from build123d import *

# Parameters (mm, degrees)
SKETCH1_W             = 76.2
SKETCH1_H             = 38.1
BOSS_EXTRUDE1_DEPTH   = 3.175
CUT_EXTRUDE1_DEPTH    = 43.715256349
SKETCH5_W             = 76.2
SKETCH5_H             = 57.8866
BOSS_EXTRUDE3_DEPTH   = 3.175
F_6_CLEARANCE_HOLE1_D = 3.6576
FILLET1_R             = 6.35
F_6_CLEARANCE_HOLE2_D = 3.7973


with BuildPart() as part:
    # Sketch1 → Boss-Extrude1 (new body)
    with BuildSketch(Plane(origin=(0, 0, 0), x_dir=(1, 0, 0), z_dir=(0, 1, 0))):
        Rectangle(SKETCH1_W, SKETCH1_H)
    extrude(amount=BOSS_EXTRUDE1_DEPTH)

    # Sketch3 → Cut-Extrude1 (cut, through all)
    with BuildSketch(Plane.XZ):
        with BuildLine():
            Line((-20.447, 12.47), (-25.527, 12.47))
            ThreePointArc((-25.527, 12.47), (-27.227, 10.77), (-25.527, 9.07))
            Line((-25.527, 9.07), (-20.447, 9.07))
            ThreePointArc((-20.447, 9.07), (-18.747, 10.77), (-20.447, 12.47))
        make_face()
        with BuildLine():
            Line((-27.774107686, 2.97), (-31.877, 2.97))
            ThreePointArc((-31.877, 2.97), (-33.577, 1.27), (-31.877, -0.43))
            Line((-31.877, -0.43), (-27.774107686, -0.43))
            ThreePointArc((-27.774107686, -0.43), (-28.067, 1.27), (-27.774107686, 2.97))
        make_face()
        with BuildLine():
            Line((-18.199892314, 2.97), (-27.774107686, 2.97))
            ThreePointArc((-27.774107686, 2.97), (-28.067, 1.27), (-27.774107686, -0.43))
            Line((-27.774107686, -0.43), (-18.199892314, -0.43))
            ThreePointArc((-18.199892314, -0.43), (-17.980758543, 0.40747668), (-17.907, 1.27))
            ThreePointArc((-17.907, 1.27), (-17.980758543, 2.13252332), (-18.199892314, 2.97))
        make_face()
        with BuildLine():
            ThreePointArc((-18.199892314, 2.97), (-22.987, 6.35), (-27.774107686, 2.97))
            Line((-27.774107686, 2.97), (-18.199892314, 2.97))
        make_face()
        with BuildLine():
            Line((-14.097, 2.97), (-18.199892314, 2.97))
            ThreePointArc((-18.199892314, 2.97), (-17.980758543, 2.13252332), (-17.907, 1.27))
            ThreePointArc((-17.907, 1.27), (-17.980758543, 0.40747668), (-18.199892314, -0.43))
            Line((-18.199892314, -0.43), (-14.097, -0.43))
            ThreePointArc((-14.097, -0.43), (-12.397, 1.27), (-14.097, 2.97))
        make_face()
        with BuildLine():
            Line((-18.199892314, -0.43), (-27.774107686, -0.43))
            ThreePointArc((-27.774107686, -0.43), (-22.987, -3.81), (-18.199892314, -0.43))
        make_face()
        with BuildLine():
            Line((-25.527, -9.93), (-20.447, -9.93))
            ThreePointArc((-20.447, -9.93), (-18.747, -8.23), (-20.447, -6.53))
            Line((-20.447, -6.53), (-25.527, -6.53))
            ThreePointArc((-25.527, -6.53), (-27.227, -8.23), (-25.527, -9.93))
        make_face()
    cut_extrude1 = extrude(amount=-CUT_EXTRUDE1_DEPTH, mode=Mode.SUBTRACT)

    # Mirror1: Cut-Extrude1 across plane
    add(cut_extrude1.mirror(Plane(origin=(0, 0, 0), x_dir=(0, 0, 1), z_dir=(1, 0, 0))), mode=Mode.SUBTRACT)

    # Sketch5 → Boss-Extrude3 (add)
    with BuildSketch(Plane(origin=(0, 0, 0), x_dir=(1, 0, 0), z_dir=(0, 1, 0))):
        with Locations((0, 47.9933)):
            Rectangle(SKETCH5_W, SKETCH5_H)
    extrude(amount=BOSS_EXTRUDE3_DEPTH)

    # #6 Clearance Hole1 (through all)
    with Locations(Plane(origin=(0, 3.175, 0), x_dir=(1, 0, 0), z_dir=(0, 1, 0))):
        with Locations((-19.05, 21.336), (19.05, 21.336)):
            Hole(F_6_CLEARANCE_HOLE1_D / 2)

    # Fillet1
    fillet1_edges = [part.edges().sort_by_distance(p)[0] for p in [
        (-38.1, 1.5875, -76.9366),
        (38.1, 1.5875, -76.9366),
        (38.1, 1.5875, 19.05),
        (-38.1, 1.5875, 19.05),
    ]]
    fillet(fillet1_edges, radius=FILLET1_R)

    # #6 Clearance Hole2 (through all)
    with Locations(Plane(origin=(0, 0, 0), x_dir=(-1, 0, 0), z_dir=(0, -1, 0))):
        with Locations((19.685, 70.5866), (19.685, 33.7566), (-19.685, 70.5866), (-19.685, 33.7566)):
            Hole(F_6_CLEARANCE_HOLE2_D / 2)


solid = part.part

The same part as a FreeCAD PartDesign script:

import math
import FreeCAD as App
import Part
import Sketcher
Q = App.Units.Quantity


def edges_at(feature, points):
    """Names of the edges that pass closest to the given points."""
    edges = feature.Shape.Edges
    near = lambda p: min(range(len(edges)), key=lambda i: edges[i].distToShape(Part.Vertex(*p))[0])
    return sorted({f"Edge{near(p) + 1}" for p in points})

doc = App.newDocument("Part")
params = doc.addObject("Spreadsheet::Sheet", "Params")
for row, (alias, value) in enumerate([
    ("sketch1_width", "3 in"),
    ("sketch1_height", "1.5 in"),
    ("pad1_length", "0.125 in"),
    ("sketch2_radius", "0.2 in"),
    ("sketch2_width", "0.2 in"),
    ("sketch3_width", "3 in"),
    ("sketch3_height", "2.279 in"),
    ("pad2_length", "0.125 in"),
    ("sketch4_diameter", "0.144 in"),
    ("hole_diameter", "0.144 in"),
    ("fillet_radius", "0.25 in"),
    ("hole2_diameter", "0.1495 in"),
], start=1):
    params.set(f"A{row}", alias)
    params.set(f"B{row}", "=" + value)
    params.setAlias(f"B{row}", alias)

body = doc.addObject("PartDesign::Body", "Body")

# Sketch on XZ plane
sketch1 = doc.addObject("Sketcher::SketchObject", "Sketch")
body.addObject(sketch1)
sketch1.AttachmentSupport = (doc.XZ_Plane, [""])
sketch1.MapMode = "FlatFace"
sketch1.addGeometry(Part.LineSegment(App.Vector(-38, -19, 0), App.Vector(-38, 19, 0)), False)
sketch1.addGeometry(Part.LineSegment(App.Vector(-38, 19, 0), App.Vector(38, 19, 0)), False)
sketch1.addGeometry(Part.LineSegment(App.Vector(38, 19, 0), App.Vector(38, -19, 0)), False)
sketch1.addGeometry(Part.LineSegment(App.Vector(38, -19, 0), App.Vector(-38, -19, 0)), False)
sketch1.addConstraint(Sketcher.Constraint("Coincident", 0, 2, 1, 1))
sketch1.addConstraint(Sketcher.Constraint("Coincident", 1, 2, 2, 1))
sketch1.addConstraint(Sketcher.Constraint("Coincident", 2, 2, 3, 1))
sketch1.addConstraint(Sketcher.Constraint("Coincident", 3, 2, 0, 1))
sketch1.addConstraint(Sketcher.Constraint("Vertical", 0))
sketch1.addConstraint(Sketcher.Constraint("Horizontal", 1))
sketch1.addConstraint(Sketcher.Constraint("Vertical", 2))
sketch1.addConstraint(Sketcher.Constraint("Horizontal", 3))
sketch1.addConstraint(Sketcher.Constraint("Symmetric", 0, 2, 2, 2, -1, 1))
sketch1.addConstraint(Sketcher.Constraint("DistanceX", 1, 1, 1, 2, Q("3 in")))
sketch1.addConstraint(Sketcher.Constraint("DistanceY", 0, 1, 0, 2, Q("1.5 in")))
sketch1.setExpression("Constraints[9]", "Params.sketch1_width")
sketch1.setExpression("Constraints[10]", "Params.sketch1_height")
pad1 = doc.addObject("PartDesign::Pad", "Pad")
body.addObject(pad1)
pad1.Profile = sketch1
pad1.setExpression("Length", "Params.pad1_length")
pad1.Reversed = True

# Sketch on XZ plane
sketch2 = doc.addObject("Sketcher::SketchObject", "Sketch001")
body.addObject(sketch2)
sketch2.AttachmentSupport = (doc.XZ_Plane, [""])
sketch2.MapMode = "FlatFace"
sketch2.addGeometry(Part.LineSegment(App.Vector(-20.4, 12.5, 0), App.Vector(-25.5, 12.5, 0)), False)
sketch2.addGeometry(Part.ArcOfCircle(Part.Circle(App.Vector(-25.5, 10.8, 0), App.Vector(0, 0, 1), 1.7), math.radians(90), math.radians(270)), False)
sketch2.addGeometry(Part.LineSegment(App.Vector(-25.5, 9.1, 0), App.Vector(-20.4, 9.1, 0)), False)
sketch2.addGeometry(Part.ArcOfCircle(Part.Circle(App.Vector(-20.4, 10.8, 0), App.Vector(0, 0, 1), 1.7), math.radians(-90), math.radians(90)), False)
sketch2.addGeometry(Part.ArcOfCircle(Part.Circle(App.Vector(-31.9, 1.3, 0), App.Vector(0, 0, 1), 1.7), math.radians(90), math.radians(270)), False)
sketch2.addGeometry(Part.LineSegment(App.Vector(-31.9, -0.4, 0), App.Vector(-27.8, -0.4, 0)), False)
sketch2.addGeometry(Part.ArcOfCircle(Part.Circle(App.Vector(-23, 1.3, 0), App.Vector(0, 0, 1), 5.1), math.radians(-160), math.radians(-20)), False)
sketch2.addGeometry(Part.LineSegment(App.Vector(-18.2, -0.4, 0), App.Vector(-14.1, -0.4, 0)), False)
sketch2.addGeometry(Part.ArcOfCircle(Part.Circle(App.Vector(-14.1, 1.3, 0), App.Vector(0, 0, 1), 1.7), math.radians(-90), math.radians(90)), False)
sketch2.addGeometry(Part.LineSegment(App.Vector(-14.1, 3, 0), App.Vector(-18.2, 3, 0)), False)
sketch2.addGeometry(Part.ArcOfCircle(Part.Circle(App.Vector(-23, 1.3, 0), App.Vector(0, 0, 1), 5.1), math.radians(20), math.radians(160)), False)
sketch2.addGeometry(Part.LineSegment(App.Vector(-27.8, 3, 0), App.Vector(-31.9, 3, 0)), False)
sketch2.addGeometry(Part.LineSegment(App.Vector(-25.5, -9.9, 0), App.Vector(-20.4, -9.9, 0)), False)
sketch2.addGeometry(Part.ArcOfCircle(Part.Circle(App.Vector(-20.4, -8.2, 0), App.Vector(0, 0, 1), 1.7), math.radians(-90), math.radians(90)), False)
sketch2.addGeometry(Part.LineSegment(App.Vector(-20.4, -6.5, 0), App.Vector(-25.5, -6.5, 0)), False)
sketch2.addGeometry(Part.ArcOfCircle(Part.Circle(App.Vector(-25.5, -8.2, 0), App.Vector(0, 0, 1), 1.7), math.radians(90), math.radians(270)), False)
sketch2.addConstraint(Sketcher.Constraint("Tangent", 0, 2, 1, 1))
sketch2.addConstraint(Sketcher.Constraint("Tangent", 1, 2, 2, 1))
sketch2.addConstraint(Sketcher.Constraint("Tangent", 2, 2, 3, 1))
sketch2.addConstraint(Sketcher.Constraint("Tangent", 3, 2, 0, 1))
sketch2.addConstraint(Sketcher.Constraint("Tangent", 4, 2, 5, 1))
sketch2.addConstraint(Sketcher.Constraint("Coincident", 5, 2, 6, 1))
sketch2.addConstraint(Sketcher.Constraint("Coincident", 6, 2, 7, 1))
sketch2.addConstraint(Sketcher.Constraint("Tangent", 7, 2, 8, 1))
sketch2.addConstraint(Sketcher.Constraint("Tangent", 8, 2, 9, 1))
sketch2.addConstraint(Sketcher.Constraint("Coincident", 9, 2, 10, 1))
sketch2.addConstraint(Sketcher.Constraint("Coincident", 10, 2, 11, 1))
sketch2.addConstraint(Sketcher.Constraint("Tangent", 11, 2, 4, 1))
sketch2.addConstraint(Sketcher.Constraint("Tangent", 12, 2, 13, 1))
sketch2.addConstraint(Sketcher.Constraint("Tangent", 13, 2, 14, 1))
sketch2.addConstraint(Sketcher.Constraint("Tangent", 14, 2, 15, 1))
sketch2.addConstraint(Sketcher.Constraint("Tangent", 15, 2, 12, 1))
sketch2.addConstraint(Sketcher.Constraint("Horizontal", 0))
sketch2.addConstraint(Sketcher.Constraint("Horizontal", 2))
sketch2.addConstraint(Sketcher.Constraint("Horizontal", 5))
sketch2.addConstraint(Sketcher.Constraint("Horizontal", 7))
sketch2.addConstraint(Sketcher.Constraint("Horizontal", 9))
sketch2.addConstraint(Sketcher.Constraint("Horizontal", 11))
sketch2.addConstraint(Sketcher.Constraint("Horizontal", 12))
sketch2.addConstraint(Sketcher.Constraint("Horizontal", 14))
sketch2.addConstraint(Sketcher.Constraint("Coincident", 10, 3, 6, 3))
sketch2.addConstraint(Sketcher.Constraint("Equal", 3, 4))
sketch2.addConstraint(Sketcher.Constraint("Equal", 4, 8))
sketch2.addConstraint(Sketcher.Constraint("Equal", 6, 10))
sketch2.addConstraint(Sketcher.Constraint("Equal", 8, 13))
sketch2.addConstraint(Sketcher.Constraint("Horizontal", 4, 3, 6, 3))
sketch2.addConstraint(Sketcher.Constraint("Horizontal", 6, 3, 8, 3))
sketch2.addConstraint(Sketcher.Constraint("Vertical", 3, 3, 13, 3))
sketch2.addConstraint(Sketcher.Constraint("Vertical", 1, 3, 15, 3))
sketch2.addConstraint(Sketcher.Constraint("Equal", 5, 7))
sketch2.addConstraint(Sketcher.Constraint("Radius", 6, Q("0.2 in")))
sketch2.addConstraint(Sketcher.Constraint("DistanceX", 0, 2, 0, 1, Q("0.2 in")))
sketch2.addConstraint(Sketcher.Constraint("DistanceX", 6, 3, 3, 3, Q("0.1 in")))
sketch2.addConstraint(Sketcher.Constraint("DistanceX", 4, 3, 8, 3, Q("0.7 in")))
sketch2.addConstraint(Sketcher.Constraint("DistanceY", -1, 1, 4, 3, Q("0.05 in")))
sketch2.addConstraint(Sketcher.Constraint("Radius", 1, Q("1.7 mm")))
sketch2.addConstraint(Sketcher.Constraint("DistanceX", 1, 3, -1, 1, Q("1.005 in")))
sketch2.addConstraint(Sketcher.Constraint("DistanceY", -1, 1, 1, 3, Q("10.77 mm")))
sketch2.addConstraint(Sketcher.Constraint("DistanceY", 13, 3, -1, 1, Q("8.23 mm")))
sketch2.setExpression("Constraints[34]", "Params.sketch2_radius")
sketch2.setExpression("Constraints[35]", "Params.sketch2_width")
pocket1 = doc.addObject("PartDesign::Pocket", "Pocket")
body.addObject(pocket1)
pocket1.Profile = sketch2
pocket1.Type = "ThroughAll"
doc.recompute()

mirrored = doc.addObject("PartDesign::Mirrored", "Mirrored")
body.addObject(mirrored)
mirrored.Originals = [pocket1]
mirrored.MirrorPlane = (doc.YZ_Plane, [""])
body.Tip = mirrored

# Sketch on XZ plane
sketch3 = doc.addObject("Sketcher::SketchObject", "Sketch002")
body.addObject(sketch3)
sketch3.AttachmentSupport = (doc.XZ_Plane, [""])
sketch3.MapMode = "FlatFace"
sketch3.addGeometry(Part.LineSegment(App.Vector(-38, -77, 0), App.Vector(-38, -19, 0)), False)
sketch3.addGeometry(Part.LineSegment(App.Vector(-38, -19, 0), App.Vector(38, -19, 0)), False)
sketch3.addGeometry(Part.LineSegment(App.Vector(38, -19, 0), App.Vector(38, -77, 0)), False)
sketch3.addGeometry(Part.LineSegment(App.Vector(38, -77, 0), App.Vector(-38, -77, 0)), False)
sketch3.addConstraint(Sketcher.Constraint("Coincident", 0, 2, 1, 1))
sketch3.addConstraint(Sketcher.Constraint("Coincident", 1, 2, 2, 1))
sketch3.addConstraint(Sketcher.Constraint("Coincident", 2, 2, 3, 1))
sketch3.addConstraint(Sketcher.Constraint("Coincident", 3, 2, 0, 1))
sketch3.addConstraint(Sketcher.Constraint("Vertical", 0))
sketch3.addConstraint(Sketcher.Constraint("Horizontal", 1))
sketch3.addConstraint(Sketcher.Constraint("Vertical", 2))
sketch3.addConstraint(Sketcher.Constraint("Horizontal", 3))
sketch3.addConstraint(Sketcher.Constraint("DistanceX", 1, 1, 1, 2, Q("3 in")))
sketch3.addConstraint(Sketcher.Constraint("DistanceX", 0, 2, -1, 1, Q("1.5 in")))
sketch3.addConstraint(Sketcher.Constraint("DistanceY", 0, 1, 0, 2, Q("2.279 in")))
sketch3.addConstraint(Sketcher.Constraint("DistanceY", 0, 2, -1, 1, Q("0.75 in")))
sketch3.setExpression("Constraints[8]", "Params.sketch3_width")
sketch3.setExpression("Constraints[10]", "Params.sketch3_height")
pad2 = doc.addObject("PartDesign::Pad", "Pad001")
body.addObject(pad2)
pad2.Profile = sketch3
pad2.setExpression("Length", "Params.pad2_length")
pad2.Reversed = True

# Sketch on XZ plane
sketch4 = doc.addObject("Sketcher::SketchObject", "Sketch003")
body.addObject(sketch4)
sketch4.AttachmentSupport = (doc.XZ_Plane, [""])
sketch4.MapMode = "FlatFace"
sketch4.AttachmentOffset = App.Placement(App.Vector(0, 0, -0.125 * 25.4), App.Rotation())
sketch4.addGeometry(Part.Circle(App.Vector(-19.1, -21.3, 0), App.Vector(0, 0, 1), 1.8), False)
sketch4.addGeometry(Part.Circle(App.Vector(19.1, -21.3, 0), App.Vector(0, 0, 1), 1.8), False)
sketch4.addConstraint(Sketcher.Constraint("Equal", 0, 1))
sketch4.addConstraint(Sketcher.Constraint("Symmetric", 0, 3, 1, 3, -2))
sketch4.addConstraint(Sketcher.Constraint("Diameter", 0, Q("0.144 in")))
sketch4.addConstraint(Sketcher.Constraint("DistanceX", 0, 3, 1, 3, Q("1.5 in")))
sketch4.addConstraint(Sketcher.Constraint("DistanceY", 0, 3, -1, 1, Q("0.84 in")))
sketch4.setExpression("Constraints[2]", "Params.sketch4_diameter")
doc.recompute()
hole = doc.addObject("PartDesign::Hole", "Hole")
body.addObject(hole)
hole.Profile = sketch4
hole.ThreadType = "None"
hole.setExpression("Diameter", "Params.hole_diameter")
hole.DepthType = "ThroughAll"
hole.Reversed = True
doc.recompute()

fillet = doc.addObject("PartDesign::Fillet", "Fillet")
body.addObject(fillet)
fillet.Base = (hole, edges_at(hole, [
    (-38.1, 1.587, -76.937),
    (38.1, 1.587, -76.937),
    (38.1, 1.587, 19.05),
    (-38.1, 1.587, 19.05),
]))
fillet.setExpression("Radius", "Params.fillet_radius")

# Sketch on XZ plane
sketch5 = doc.addObject("Sketcher::SketchObject", "Sketch004")
body.addObject(sketch5)
sketch5.AttachmentSupport = (doc.XZ_Plane, [""])
sketch5.MapMode = "FlatFace"
sketch5.addGeometry(Part.Circle(App.Vector(-19.7, -70.6, 0), App.Vector(0, 0, 1), 1.9), False)
sketch5.addGeometry(Part.Circle(App.Vector(-19.7, -33.8, 0), App.Vector(0, 0, 1), 1.9), False)
sketch5.addGeometry(Part.Circle(App.Vector(19.7, -70.6, 0), App.Vector(0, 0, 1), 1.9), False)
sketch5.addGeometry(Part.Circle(App.Vector(19.7, -33.8, 0), App.Vector(0, 0, 1), 1.9), False)
sketch5.addConstraint(Sketcher.Constraint("Equal", 0, 1))
sketch5.addConstraint(Sketcher.Constraint("Equal", 1, 2))
sketch5.addConstraint(Sketcher.Constraint("Equal", 2, 3))
sketch5.addConstraint(Sketcher.Constraint("Symmetric", 0, 3, 2, 3, -2))
sketch5.addConstraint(Sketcher.Constraint("Symmetric", 1, 3, 3, 3, -2))
sketch5.addConstraint(Sketcher.Constraint("Vertical", 0, 3, 1, 3))
sketch5.addConstraint(Sketcher.Constraint("Diameter", 0, Q("0.1495 in")))
sketch5.addConstraint(Sketcher.Constraint("DistanceY", 0, 3, 1, 3, Q("1.45 in")))
sketch5.addConstraint(Sketcher.Constraint("DistanceX", 0, 3, 2, 3, Q("1.55 in")))
sketch5.addConstraint(Sketcher.Constraint("DistanceY", 0, 3, -1, 1, Q("2.779 in")))
doc.recompute()
hole2 = doc.addObject("PartDesign::Hole", "Hole001")
body.addObject(hole2)
hole2.Profile = sketch5
hole2.ThreadType = "None"
hole2.setExpression("Diameter", "Params.hole2_diameter")
hole2.DepthType = "ThroughAll"

doc.recompute()
